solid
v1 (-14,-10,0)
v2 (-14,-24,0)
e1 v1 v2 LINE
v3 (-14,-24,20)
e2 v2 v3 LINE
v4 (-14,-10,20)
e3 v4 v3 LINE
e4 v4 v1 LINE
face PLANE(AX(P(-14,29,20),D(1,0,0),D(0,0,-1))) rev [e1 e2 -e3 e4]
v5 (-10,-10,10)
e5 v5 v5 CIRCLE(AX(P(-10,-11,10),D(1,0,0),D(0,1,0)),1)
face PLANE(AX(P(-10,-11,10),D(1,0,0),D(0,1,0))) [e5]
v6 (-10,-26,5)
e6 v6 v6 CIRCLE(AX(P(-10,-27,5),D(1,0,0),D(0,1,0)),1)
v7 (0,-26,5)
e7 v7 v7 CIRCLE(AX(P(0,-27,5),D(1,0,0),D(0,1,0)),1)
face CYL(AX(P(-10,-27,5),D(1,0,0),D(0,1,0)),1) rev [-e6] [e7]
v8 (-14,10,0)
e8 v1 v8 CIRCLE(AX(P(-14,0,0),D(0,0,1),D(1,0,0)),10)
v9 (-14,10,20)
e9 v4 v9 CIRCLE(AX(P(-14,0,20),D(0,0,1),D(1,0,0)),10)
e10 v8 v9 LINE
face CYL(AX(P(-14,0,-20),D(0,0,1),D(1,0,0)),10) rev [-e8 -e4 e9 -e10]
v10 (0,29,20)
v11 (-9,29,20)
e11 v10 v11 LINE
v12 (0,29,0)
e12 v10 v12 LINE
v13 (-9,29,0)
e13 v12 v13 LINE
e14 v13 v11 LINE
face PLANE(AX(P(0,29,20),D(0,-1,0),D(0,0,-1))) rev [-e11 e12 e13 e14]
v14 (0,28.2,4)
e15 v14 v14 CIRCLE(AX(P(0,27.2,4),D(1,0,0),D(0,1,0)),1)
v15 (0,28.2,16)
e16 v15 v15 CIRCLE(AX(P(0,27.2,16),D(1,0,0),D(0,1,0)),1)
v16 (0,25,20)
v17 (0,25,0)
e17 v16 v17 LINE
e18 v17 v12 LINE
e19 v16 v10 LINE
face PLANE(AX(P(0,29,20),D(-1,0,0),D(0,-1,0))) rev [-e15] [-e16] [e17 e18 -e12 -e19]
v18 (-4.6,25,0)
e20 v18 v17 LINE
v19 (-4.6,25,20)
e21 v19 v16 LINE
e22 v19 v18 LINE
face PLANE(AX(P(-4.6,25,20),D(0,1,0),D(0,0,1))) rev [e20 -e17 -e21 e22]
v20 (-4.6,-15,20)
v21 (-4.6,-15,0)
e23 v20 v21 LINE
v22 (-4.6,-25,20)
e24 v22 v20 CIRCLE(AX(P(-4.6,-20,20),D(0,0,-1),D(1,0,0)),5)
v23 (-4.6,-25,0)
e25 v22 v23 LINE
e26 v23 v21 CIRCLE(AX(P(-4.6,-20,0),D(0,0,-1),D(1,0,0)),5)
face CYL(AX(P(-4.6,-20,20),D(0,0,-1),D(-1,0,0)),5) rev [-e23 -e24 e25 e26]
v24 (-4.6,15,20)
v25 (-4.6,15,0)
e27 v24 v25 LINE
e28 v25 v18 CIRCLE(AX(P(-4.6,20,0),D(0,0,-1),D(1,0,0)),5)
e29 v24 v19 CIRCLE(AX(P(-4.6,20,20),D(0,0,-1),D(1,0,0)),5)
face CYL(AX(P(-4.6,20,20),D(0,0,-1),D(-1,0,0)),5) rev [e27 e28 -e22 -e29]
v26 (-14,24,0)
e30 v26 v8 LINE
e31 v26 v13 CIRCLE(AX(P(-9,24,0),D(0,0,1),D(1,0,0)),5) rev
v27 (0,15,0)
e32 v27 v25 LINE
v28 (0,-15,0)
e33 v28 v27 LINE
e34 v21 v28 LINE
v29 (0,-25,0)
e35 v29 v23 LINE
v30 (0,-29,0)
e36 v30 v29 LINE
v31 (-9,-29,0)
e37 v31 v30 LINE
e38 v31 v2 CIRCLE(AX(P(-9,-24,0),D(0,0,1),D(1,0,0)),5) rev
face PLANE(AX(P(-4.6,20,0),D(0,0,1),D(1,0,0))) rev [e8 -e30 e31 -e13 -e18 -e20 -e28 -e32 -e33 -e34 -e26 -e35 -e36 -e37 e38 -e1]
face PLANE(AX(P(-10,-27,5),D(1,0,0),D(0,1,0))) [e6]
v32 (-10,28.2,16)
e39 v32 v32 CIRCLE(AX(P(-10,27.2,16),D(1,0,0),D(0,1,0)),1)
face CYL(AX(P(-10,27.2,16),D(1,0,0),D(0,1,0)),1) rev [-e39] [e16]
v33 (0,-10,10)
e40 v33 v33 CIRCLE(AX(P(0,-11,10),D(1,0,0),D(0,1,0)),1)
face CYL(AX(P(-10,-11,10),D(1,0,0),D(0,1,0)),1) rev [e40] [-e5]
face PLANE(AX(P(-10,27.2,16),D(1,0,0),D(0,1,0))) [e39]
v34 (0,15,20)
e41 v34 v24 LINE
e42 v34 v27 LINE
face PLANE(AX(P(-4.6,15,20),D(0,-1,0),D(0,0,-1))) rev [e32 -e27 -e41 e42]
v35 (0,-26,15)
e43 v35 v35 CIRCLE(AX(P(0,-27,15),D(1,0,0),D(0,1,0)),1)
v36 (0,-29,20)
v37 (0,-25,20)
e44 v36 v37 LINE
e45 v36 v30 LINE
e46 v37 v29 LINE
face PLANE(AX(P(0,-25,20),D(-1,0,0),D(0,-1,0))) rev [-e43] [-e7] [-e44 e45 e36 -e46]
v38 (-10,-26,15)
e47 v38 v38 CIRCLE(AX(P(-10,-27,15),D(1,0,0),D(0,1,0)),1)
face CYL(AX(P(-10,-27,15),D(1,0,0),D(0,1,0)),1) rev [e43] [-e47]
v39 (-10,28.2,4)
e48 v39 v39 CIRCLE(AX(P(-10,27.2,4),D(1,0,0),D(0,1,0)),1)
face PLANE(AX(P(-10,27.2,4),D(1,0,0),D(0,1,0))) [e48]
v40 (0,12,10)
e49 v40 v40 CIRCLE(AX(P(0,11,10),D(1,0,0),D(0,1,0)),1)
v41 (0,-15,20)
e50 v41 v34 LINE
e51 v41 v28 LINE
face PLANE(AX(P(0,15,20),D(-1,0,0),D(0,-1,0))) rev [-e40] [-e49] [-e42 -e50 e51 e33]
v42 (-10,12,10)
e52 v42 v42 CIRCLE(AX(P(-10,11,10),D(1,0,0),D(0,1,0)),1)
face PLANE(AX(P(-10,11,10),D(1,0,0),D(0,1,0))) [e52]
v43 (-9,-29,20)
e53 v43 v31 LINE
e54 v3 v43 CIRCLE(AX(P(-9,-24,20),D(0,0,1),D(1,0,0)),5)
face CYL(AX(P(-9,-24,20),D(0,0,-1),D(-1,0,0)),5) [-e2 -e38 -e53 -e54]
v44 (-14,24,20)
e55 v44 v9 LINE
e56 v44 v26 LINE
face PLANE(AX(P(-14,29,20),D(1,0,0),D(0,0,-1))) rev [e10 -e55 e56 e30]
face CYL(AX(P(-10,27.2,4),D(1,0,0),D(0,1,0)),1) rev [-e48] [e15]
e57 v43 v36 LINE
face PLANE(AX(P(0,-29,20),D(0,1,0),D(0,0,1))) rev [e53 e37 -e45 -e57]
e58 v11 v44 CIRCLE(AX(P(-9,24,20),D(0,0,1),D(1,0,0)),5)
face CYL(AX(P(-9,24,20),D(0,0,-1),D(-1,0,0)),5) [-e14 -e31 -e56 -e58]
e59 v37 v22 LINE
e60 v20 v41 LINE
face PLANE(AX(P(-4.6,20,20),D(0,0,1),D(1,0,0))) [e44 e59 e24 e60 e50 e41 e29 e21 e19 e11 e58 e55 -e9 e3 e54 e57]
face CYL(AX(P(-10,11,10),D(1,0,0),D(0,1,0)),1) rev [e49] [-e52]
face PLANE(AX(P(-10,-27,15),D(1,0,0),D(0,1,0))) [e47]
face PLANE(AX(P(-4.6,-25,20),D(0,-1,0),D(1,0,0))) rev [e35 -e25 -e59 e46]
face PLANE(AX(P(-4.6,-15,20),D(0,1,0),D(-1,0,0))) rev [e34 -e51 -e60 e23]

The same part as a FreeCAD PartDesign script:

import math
import FreeCAD as App
import Part
import Sketcher
Q = App.Units.Quantity


def edges_at(feature, points):
    """Names of the edges that pass closest to the given points."""
    edges = feature.Shape.Edges
    near = lambda p: min(range(len(edges)), key=lambda i: edges[i].distToShape(Part.Vertex(*p))[0])
    return sorted({f"Edge{near(p) + 1}" for p in points})

doc = App.newDocument("Part")
body = doc.addObject("PartDesign::Body", "Body")

# Sketch on XY plane
sketch1 = body.newObject("Sketcher::SketchObject", "Sketch")
sketch1.AttachmentSupport = (doc.getObject("XY_Plane"), [""])
sketch1.MapMode = "FlatFace"
sketch1.addGeometry([
    Part.LineSegment(App.Vector(0, 25, 0), App.Vector(0, 29, 0)),  # 0
    Part.LineSegment(App.Vector(0, 29, 0), App.Vector(-14, 29, 0)),  # 1
    Part.LineSegment(App.Vector(-14, 29, 0), App.Vector(-14, -29, 0)),  # 2
    Part.LineSegment(App.Vector(-14, -29, 0), App.Vector(0, -29, 0)),  # 3
    Part.LineSegment(App.Vector(0, -29, 0), App.Vector(0, -25, 0)),  # 4
    Part.LineSegment(App.Vector(0, -25, 0), App.Vector(-4.6, -25, 0)),  # 5
    Part.ArcOfCircle(Part.Circle(App.Vector(-4.6, -20, 0), App.Vector(0, 0, 1), 5), math.radians(90), math.radians(270)),  # 6
    Part.LineSegment(App.Vector(-4.6, -15, 0), App.Vector(0, -15, 0)),  # 7
    Part.LineSegment(App.Vector(0, -15, 0), App.Vector(0, 15, 0)),  # 8
    Part.LineSegment(App.Vector(0, 15, 0), App.Vector(-4.6, 15, 0)),  # 9
    Part.ArcOfCircle(Part.Circle(App.Vector(-4.6, 20, 0), App.Vector(0, 0, 1), 5), math.radians(90), math.radians(270)),  # 10
    Part.LineSegment(App.Vector(-4.6, 25, 0), App.Vector(0, 25, 0)),  # 11
], False)
sketch1.addConstraint([
    Sketcher.Constraint("Coincident", 0, 2, 1, 1),
    Sketcher.Constraint("Coincident", 1, 2, 2, 1),
    Sketcher.Constraint("Coincident", 2, 2, 3, 1),
    Sketcher.Constraint("Coincident", 3, 2, 4, 1),
    Sketcher.Constraint("Coincident", 4, 2, 5, 1),
    Sketcher.Constraint("Tangent", 5, 2, 6, 2),
    Sketcher.Constraint("Tangent", 6, 1, 7, 1),
    Sketcher.Constraint("Coincident", 7, 2, 8, 1),
    Sketcher.Constraint("Coincident", 8, 2, 9, 1),
    Sketcher.Constraint("Tangent", 9, 2, 10, 2),
    Sketcher.Constraint("Tangent", 10, 1, 11, 1),
    Sketcher.Constraint("Coincident", 11, 2, 0, 1),
    Sketcher.Constraint("Vertical", 0),
    Sketcher.Constraint("Horizontal", 1),
    Sketcher.Constraint("Vertical", 2),
    Sketcher.Constraint("Horizontal", 3),
    Sketcher.Constraint("Vertical", 4),
    Sketcher.Constraint("Horizontal", 5),
    Sketcher.Constraint("Horizontal", 7),
    Sketcher.Constraint("Vertical", 8),
    Sketcher.Constraint("Horizontal", 9),
    Sketcher.Constraint("Horizontal", 11),
    Sketcher.Constraint("Equal", 6, 10),
    Sketcher.Constraint("Symmetric", 0, 2, 3, 2, -1, 1),
    Sketcher.Constraint("Symmetric", 7, 2, 8, 2, -1, 1),
    Sketcher.Constraint("PointOnObject", 0, 2, -2),
    Sketcher.Constraint("Vertical", 6, 3, 10, 3),
    Sketcher.Constraint("Radius", 6, Q("5 mm")),
    Sketcher.Constraint("DistanceX", 1, 2, 1, 1, Q("14 mm")),
    Sketcher.Constraint("DistanceY", 0, 1, 0, 2, Q("4 mm")),
    Sketcher.Constraint("DistanceY", 2, 2, 2, 1, Q("58 mm")),
    Sketcher.Constraint("DistanceX", 5, 2, 5, 1, Q("4.6 mm")),
])
pad1 = body.newObject("PartDesign::Pad", "Pad")
pad1.Profile = sketch1
pad1.Length = 20
doc.recompute()

fillet = body.newObject("PartDesign::Fillet", "Fillet")
fillet.Base = (pad1, edges_at(pad1, [(-14, -29, 10), (-14, 29, 10)]))
fillet.Radius = 5

# Sketch on YZ plane
sketch2 = body.newObject("Sketcher::SketchObject", "Sketch001")
sketch2.AttachmentSupport = (doc.getObject("YZ_Plane"), [""])
sketch2.MapMode = "FlatFace"
sketch2.addGeometry([
    Part.Circle(App.Vector(27.2, 16, 0), App.Vector(0, 0, 1), 1),  # 0
    Part.Circle(App.Vector(27.2, 4, 0), App.Vector(0, 0, 1), 1),  # 1
    Part.Circle(App.Vector(11, 10, 0), App.Vector(0, 0, 1), 1),  # 2
    Part.Circle(App.Vector(-11, 10, 0), App.Vector(0, 0, 1), 1),  # 3
    Part.Circle(App.Vector(-27, 15, 0), App.Vector(0, 0, 1), 1),  # 4
    Part.Circle(App.Vector(-27, 5, 0), App.Vector(0, 0, 1), 1),  # 5
], False)
sketch2.addConstraint([
    Sketcher.Constraint("Equal", 0, 1),
    Sketcher.Constraint("Equal", 1, 2),
    Sketcher.Constraint("Equal", 2, 3),
    Sketcher.Constraint("Equal", 3, 4),
    Sketcher.Constraint("Equal", 4, 5),
    Sketcher.Constraint("Symmetric", 2, 3, 3, 3, -2),
    Sketcher.Constraint("Vertical", 0, 3, 1, 3),
    Sketcher.Constraint("Vertical", 4, 3, 5, 3),
    Sketcher.Constraint("Diameter", 0, Q("2 mm")),
    Sketcher.Constraint("DistanceY", -1, 1, 0, 3, Q("16 mm")),
    Sketcher.Constraint("DistanceY", -1, 1, 1, 3, Q("4 mm")),
    Sketcher.Constraint("DistanceX", -1, 1, 2, 3, Q("11 mm")),
    Sketcher.Constraint("DistanceY", -1, 1, 2, 3, Q("10 mm")),
    Sketcher.Constraint("DistanceX", 4, 3, -1, 1, Q("27 mm")),
    Sketcher.Constraint("DistanceY", -1, 1, 4, 3, Q("15 mm")),
    Sketcher.Constraint("DistanceY", -1, 1, 5, 3, Q("5 mm")),
    Sketcher.Constraint("DistanceX", -1, 1, 0, 3, Q("27.2 mm")),
])
pocket1 = body.newObject("PartDesign::Pocket", "Pocket")
pocket1.Profile = sketch2
pocket1.Length = 10

# Sketch on XY plane
sketch3 = body.newObject("Sketcher::SketchObject", "Sketch002")
sketch3.AttachmentSupport = (doc.getObject("XY_Plane"), [""])
sketch3.MapMode = "FlatFace"
sketch3.AttachmentOffset = App.Placement(App.Vector(0, 0, 20), App.Rotation())
sketch3.addGeometry(Part.Circle(App.Vector(-14, 0, 0), App.Vector(0, 0, 1), 10), False)
sketch3.addConstraint([
    Sketcher.Constraint("PointOnObject", 0, 3, -1),
    Sketcher.Constraint("Diameter", 0, Q("20 mm")),
    Sketcher.Constraint("DistanceX", 0, 3, -1, 1, Q("14 mm")),
])
pocket2 = body.newObject("PartDesign::Pocket", "Pocket001")
pocket2.Profile = sketch3
pocket2.Length = 40

doc.recompute()
